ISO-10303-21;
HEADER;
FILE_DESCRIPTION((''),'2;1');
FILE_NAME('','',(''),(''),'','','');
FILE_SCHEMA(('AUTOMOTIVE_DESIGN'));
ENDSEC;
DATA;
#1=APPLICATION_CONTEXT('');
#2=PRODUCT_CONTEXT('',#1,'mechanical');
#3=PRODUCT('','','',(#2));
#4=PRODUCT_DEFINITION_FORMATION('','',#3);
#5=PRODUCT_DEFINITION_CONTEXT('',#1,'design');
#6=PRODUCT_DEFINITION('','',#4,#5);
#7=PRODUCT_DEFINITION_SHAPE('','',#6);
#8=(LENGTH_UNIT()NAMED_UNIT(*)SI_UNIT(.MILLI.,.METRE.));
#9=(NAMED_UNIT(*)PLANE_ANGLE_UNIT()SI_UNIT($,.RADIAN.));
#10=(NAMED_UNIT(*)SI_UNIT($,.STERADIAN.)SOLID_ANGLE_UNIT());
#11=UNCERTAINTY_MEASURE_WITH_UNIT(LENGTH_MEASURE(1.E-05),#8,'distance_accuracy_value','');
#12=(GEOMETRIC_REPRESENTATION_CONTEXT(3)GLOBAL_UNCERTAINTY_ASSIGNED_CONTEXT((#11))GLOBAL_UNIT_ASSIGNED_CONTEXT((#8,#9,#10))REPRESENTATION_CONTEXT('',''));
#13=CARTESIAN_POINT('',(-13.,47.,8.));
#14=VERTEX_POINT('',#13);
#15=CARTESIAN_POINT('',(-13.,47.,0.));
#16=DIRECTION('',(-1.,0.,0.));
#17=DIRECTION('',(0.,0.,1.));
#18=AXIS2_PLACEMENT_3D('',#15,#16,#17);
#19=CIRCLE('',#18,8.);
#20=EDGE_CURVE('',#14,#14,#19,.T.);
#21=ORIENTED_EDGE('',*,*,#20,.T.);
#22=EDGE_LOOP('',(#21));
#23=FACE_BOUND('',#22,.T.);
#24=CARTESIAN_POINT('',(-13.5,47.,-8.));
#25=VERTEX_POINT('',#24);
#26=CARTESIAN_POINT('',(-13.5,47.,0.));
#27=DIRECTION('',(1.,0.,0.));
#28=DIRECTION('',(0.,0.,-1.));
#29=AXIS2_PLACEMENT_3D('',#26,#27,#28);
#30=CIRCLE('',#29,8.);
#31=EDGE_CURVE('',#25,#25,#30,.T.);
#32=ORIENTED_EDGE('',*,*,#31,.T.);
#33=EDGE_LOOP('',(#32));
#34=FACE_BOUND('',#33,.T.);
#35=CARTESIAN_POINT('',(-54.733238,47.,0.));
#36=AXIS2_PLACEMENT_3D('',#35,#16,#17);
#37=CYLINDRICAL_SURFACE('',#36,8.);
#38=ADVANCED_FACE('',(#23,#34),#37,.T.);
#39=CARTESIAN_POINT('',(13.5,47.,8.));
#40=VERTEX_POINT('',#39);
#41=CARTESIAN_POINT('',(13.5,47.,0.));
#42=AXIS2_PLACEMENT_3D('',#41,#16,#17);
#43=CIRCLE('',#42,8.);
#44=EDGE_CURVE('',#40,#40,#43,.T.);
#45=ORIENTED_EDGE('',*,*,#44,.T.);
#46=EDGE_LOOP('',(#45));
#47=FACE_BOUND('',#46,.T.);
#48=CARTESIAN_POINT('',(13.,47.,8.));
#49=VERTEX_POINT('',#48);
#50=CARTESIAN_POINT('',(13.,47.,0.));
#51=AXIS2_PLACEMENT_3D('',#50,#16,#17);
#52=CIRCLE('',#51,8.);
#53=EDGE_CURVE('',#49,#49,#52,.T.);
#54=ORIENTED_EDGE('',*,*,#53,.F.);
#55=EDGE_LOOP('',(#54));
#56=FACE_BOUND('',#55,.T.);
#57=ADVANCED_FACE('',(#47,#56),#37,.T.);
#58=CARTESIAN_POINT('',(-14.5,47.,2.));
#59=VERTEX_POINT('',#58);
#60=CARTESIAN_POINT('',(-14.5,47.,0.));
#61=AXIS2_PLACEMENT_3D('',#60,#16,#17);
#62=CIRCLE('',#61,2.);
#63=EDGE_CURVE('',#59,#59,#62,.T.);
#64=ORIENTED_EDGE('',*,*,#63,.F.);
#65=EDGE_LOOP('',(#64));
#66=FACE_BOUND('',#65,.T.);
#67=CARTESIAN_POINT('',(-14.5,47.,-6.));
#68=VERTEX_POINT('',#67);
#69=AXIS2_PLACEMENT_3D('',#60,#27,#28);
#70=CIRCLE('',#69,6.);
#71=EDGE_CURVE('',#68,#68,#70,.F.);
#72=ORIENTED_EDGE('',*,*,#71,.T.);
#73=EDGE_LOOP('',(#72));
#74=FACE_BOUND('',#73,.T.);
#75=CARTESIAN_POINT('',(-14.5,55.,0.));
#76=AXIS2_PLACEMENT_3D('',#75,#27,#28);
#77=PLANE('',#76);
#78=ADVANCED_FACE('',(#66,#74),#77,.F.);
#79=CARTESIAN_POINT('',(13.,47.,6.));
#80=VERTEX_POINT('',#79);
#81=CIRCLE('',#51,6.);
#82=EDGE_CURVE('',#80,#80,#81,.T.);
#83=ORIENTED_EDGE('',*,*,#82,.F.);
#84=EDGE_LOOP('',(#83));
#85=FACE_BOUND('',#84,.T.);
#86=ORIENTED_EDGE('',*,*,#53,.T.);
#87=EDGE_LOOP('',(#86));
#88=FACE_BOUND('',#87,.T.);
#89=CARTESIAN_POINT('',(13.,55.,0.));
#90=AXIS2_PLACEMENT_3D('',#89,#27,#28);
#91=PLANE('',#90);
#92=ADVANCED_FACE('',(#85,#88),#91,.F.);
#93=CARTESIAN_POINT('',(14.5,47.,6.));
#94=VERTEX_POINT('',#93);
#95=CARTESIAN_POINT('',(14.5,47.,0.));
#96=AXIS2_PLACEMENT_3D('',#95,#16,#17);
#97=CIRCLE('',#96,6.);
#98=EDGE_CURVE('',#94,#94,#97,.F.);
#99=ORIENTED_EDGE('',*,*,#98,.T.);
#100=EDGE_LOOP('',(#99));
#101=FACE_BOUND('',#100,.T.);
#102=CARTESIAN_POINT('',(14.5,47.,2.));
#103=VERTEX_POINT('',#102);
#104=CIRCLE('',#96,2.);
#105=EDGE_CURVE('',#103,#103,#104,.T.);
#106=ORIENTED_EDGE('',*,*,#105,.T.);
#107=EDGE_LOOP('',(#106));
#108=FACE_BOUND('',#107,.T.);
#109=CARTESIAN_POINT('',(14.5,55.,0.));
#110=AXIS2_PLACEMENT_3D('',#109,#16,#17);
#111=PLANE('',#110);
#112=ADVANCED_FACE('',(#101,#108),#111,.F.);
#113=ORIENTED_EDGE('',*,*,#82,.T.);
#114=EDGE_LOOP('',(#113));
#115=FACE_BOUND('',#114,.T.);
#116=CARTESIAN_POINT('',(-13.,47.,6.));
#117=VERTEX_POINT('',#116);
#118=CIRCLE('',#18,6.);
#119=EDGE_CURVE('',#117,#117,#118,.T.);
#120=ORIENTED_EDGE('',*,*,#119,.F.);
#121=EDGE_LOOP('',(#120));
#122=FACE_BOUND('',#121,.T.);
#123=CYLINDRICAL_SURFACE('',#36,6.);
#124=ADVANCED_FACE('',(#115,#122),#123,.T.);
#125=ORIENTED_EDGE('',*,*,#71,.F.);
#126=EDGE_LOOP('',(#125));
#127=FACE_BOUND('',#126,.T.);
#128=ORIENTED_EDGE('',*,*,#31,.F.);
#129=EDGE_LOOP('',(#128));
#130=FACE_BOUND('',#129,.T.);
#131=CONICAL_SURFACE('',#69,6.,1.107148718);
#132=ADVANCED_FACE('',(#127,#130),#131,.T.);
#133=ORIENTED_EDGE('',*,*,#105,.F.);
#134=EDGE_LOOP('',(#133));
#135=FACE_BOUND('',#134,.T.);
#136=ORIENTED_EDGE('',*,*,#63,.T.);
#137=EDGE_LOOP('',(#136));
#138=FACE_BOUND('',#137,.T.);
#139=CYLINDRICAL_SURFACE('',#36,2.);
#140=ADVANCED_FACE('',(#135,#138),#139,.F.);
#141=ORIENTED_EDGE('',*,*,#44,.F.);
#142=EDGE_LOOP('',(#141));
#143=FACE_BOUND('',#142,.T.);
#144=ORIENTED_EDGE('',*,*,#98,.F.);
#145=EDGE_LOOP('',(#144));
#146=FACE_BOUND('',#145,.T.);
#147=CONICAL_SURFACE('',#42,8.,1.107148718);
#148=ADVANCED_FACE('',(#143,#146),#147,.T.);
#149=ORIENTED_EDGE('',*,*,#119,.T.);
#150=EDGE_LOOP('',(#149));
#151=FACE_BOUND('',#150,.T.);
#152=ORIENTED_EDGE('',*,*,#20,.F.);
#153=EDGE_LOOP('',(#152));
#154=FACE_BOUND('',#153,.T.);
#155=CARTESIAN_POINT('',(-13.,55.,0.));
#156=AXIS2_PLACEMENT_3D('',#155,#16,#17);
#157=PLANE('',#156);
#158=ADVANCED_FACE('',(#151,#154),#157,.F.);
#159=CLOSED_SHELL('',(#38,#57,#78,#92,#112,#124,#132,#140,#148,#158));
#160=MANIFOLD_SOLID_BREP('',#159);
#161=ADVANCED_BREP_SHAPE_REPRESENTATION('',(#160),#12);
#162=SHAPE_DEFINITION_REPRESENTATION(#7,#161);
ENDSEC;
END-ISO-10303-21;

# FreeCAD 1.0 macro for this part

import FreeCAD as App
import Part
import Sketcher


def edges_at(feature, points):
    """Names of the edges that pass closest to the given points."""
    edges = feature.Shape.Edges
    near = lambda p: min(range(len(edges)), key=lambda i: edges[i].distToShape(Part.Vertex(*p))[0])
    return sorted({f"Edge{near(p) + 1}" for p in points})

doc = App.newDocument("Part")
body = doc.addObject("PartDesign::Body", "Body")

# Sketch on XY plane
sketch1 = body.newObject("Sketcher::SketchObject", "Sketch")
sketch1.AttachmentSupport = (doc.getObject("XY_Plane"), [""])
sketch1.MapMode = "FlatFace"
sketch1.addGeometry([
    Part.LineSegment(App.Vector(13, 53, 0), App.Vector(-13, 53, 0)),  # 0
    Part.LineSegment(App.Vector(-13, 53, 0), App.Vector(-13, 55, 0)),  # 1
    Part.LineSegment(App.Vector(-13, 55, 0), App.Vector(-14.5, 55, 0)),  # 2
    Part.LineSegment(App.Vector(-14.5, 55, 0), App.Vector(-14.5, 49, 0)),  # 3
    Part.LineSegment(App.Vector(-14.5, 49, 0), App.Vector(14.5, 49, 0)),  # 4
    Part.LineSegment(App.Vector(14.5, 49, 0), App.Vector(14.5, 55, 0)),  # 5
    Part.LineSegment(App.Vector(14.5, 55, 0), App.Vector(13, 55, 0)),  # 6
    Part.LineSegment(App.Vector(13, 55, 0), App.Vector(13, 53, 0)),  # 7
], False)
sketch1.addGeometry(Part.LineSegment(App.Vector(-14.5, 47, 0), App.Vector(14.5, 47, 0)), True)  # axis
sketch1.addConstraint([
    Sketcher.Constraint("Coincident", 0, 2, 1, 1),
    Sketcher.Constraint("Coincident", 1, 2, 2, 1),
    Sketcher.Constraint("Coincident", 2, 2, 3, 1),
    Sketcher.Constraint("Coincident", 3, 2, 4, 1),
    Sketcher.Constraint("Coincident", 4, 2, 5, 1),
    Sketcher.Constraint("Coincident", 5, 2, 6, 1),
    Sketcher.Constraint("Coincident", 6, 2, 7, 1),
    Sketcher.Constraint("Coincident", 7, 2, 0, 1),
    Sketcher.Constraint("Horizontal", 0),
    Sketcher.Constraint("Vertical", 1),
    Sketcher.Constraint("Horizontal", 2),
    Sketcher.Constraint("Vertical", 3),
    Sketcher.Constraint("Horizontal", 4),
    Sketcher.Constraint("Vertical", 5),
    Sketcher.Constraint("Horizontal", 6),
    Sketcher.Constraint("Vertical", 7),
    Sketcher.Constraint("Horizontal", 8),
    Sketcher.Constraint("Symmetric", 2, 2, 5, 2, -2),
    Sketcher.Constraint("Vertical", 3, 2, 8, 1),
    Sketcher.Constraint("Vertical", 5, 2, 8, 2),
    Sketcher.Constraint("Equal", 2, 6),
    Sketcher.Constraint("DistanceX", 0, 2, 0, 1, 26.0),
    Sketcher.Constraint("DistanceX", 4, 1, 4, 2, 29.0),
    Sketcher.Constraint("DistanceY", 1, 1, 1, 2, 2.0),
    Sketcher.Constraint("DistanceY", 3, 2, 3, 1, 6.0),
    Sketcher.Constraint("DistanceY", -1, 1, 0, 2, 53.0),
    Sketcher.Constraint("DistanceY", -1, 1, 8, 1, 47.0),
])
revolution = body.newObject("PartDesign::Revolution", "Revolution")
revolution.Profile = sketch1
revolution.ReferenceAxis = (sketch1, ["Axis0"])
revolution.Angle = 360
doc.recompute()

chamfer = body.newObject("PartDesign::Chamfer", "Chamfer")
chamfer.Base = (revolution, edges_at(revolution, [(-14.5, 47, -8)]))
chamfer.ChamferType = "Two distances"
chamfer.Size = 1
chamfer.Size2 = 2
doc.recompute()

chamfer2 = body.newObject("PartDesign::Chamfer", "Chamfer001")
chamfer2.Base = (chamfer, edges_at(chamfer, [(14.5, 47, -8)]))
chamfer2.ChamferType = "Two distances"
chamfer2.Size = 2
chamfer2.Size2 = 1

doc.recompute()
